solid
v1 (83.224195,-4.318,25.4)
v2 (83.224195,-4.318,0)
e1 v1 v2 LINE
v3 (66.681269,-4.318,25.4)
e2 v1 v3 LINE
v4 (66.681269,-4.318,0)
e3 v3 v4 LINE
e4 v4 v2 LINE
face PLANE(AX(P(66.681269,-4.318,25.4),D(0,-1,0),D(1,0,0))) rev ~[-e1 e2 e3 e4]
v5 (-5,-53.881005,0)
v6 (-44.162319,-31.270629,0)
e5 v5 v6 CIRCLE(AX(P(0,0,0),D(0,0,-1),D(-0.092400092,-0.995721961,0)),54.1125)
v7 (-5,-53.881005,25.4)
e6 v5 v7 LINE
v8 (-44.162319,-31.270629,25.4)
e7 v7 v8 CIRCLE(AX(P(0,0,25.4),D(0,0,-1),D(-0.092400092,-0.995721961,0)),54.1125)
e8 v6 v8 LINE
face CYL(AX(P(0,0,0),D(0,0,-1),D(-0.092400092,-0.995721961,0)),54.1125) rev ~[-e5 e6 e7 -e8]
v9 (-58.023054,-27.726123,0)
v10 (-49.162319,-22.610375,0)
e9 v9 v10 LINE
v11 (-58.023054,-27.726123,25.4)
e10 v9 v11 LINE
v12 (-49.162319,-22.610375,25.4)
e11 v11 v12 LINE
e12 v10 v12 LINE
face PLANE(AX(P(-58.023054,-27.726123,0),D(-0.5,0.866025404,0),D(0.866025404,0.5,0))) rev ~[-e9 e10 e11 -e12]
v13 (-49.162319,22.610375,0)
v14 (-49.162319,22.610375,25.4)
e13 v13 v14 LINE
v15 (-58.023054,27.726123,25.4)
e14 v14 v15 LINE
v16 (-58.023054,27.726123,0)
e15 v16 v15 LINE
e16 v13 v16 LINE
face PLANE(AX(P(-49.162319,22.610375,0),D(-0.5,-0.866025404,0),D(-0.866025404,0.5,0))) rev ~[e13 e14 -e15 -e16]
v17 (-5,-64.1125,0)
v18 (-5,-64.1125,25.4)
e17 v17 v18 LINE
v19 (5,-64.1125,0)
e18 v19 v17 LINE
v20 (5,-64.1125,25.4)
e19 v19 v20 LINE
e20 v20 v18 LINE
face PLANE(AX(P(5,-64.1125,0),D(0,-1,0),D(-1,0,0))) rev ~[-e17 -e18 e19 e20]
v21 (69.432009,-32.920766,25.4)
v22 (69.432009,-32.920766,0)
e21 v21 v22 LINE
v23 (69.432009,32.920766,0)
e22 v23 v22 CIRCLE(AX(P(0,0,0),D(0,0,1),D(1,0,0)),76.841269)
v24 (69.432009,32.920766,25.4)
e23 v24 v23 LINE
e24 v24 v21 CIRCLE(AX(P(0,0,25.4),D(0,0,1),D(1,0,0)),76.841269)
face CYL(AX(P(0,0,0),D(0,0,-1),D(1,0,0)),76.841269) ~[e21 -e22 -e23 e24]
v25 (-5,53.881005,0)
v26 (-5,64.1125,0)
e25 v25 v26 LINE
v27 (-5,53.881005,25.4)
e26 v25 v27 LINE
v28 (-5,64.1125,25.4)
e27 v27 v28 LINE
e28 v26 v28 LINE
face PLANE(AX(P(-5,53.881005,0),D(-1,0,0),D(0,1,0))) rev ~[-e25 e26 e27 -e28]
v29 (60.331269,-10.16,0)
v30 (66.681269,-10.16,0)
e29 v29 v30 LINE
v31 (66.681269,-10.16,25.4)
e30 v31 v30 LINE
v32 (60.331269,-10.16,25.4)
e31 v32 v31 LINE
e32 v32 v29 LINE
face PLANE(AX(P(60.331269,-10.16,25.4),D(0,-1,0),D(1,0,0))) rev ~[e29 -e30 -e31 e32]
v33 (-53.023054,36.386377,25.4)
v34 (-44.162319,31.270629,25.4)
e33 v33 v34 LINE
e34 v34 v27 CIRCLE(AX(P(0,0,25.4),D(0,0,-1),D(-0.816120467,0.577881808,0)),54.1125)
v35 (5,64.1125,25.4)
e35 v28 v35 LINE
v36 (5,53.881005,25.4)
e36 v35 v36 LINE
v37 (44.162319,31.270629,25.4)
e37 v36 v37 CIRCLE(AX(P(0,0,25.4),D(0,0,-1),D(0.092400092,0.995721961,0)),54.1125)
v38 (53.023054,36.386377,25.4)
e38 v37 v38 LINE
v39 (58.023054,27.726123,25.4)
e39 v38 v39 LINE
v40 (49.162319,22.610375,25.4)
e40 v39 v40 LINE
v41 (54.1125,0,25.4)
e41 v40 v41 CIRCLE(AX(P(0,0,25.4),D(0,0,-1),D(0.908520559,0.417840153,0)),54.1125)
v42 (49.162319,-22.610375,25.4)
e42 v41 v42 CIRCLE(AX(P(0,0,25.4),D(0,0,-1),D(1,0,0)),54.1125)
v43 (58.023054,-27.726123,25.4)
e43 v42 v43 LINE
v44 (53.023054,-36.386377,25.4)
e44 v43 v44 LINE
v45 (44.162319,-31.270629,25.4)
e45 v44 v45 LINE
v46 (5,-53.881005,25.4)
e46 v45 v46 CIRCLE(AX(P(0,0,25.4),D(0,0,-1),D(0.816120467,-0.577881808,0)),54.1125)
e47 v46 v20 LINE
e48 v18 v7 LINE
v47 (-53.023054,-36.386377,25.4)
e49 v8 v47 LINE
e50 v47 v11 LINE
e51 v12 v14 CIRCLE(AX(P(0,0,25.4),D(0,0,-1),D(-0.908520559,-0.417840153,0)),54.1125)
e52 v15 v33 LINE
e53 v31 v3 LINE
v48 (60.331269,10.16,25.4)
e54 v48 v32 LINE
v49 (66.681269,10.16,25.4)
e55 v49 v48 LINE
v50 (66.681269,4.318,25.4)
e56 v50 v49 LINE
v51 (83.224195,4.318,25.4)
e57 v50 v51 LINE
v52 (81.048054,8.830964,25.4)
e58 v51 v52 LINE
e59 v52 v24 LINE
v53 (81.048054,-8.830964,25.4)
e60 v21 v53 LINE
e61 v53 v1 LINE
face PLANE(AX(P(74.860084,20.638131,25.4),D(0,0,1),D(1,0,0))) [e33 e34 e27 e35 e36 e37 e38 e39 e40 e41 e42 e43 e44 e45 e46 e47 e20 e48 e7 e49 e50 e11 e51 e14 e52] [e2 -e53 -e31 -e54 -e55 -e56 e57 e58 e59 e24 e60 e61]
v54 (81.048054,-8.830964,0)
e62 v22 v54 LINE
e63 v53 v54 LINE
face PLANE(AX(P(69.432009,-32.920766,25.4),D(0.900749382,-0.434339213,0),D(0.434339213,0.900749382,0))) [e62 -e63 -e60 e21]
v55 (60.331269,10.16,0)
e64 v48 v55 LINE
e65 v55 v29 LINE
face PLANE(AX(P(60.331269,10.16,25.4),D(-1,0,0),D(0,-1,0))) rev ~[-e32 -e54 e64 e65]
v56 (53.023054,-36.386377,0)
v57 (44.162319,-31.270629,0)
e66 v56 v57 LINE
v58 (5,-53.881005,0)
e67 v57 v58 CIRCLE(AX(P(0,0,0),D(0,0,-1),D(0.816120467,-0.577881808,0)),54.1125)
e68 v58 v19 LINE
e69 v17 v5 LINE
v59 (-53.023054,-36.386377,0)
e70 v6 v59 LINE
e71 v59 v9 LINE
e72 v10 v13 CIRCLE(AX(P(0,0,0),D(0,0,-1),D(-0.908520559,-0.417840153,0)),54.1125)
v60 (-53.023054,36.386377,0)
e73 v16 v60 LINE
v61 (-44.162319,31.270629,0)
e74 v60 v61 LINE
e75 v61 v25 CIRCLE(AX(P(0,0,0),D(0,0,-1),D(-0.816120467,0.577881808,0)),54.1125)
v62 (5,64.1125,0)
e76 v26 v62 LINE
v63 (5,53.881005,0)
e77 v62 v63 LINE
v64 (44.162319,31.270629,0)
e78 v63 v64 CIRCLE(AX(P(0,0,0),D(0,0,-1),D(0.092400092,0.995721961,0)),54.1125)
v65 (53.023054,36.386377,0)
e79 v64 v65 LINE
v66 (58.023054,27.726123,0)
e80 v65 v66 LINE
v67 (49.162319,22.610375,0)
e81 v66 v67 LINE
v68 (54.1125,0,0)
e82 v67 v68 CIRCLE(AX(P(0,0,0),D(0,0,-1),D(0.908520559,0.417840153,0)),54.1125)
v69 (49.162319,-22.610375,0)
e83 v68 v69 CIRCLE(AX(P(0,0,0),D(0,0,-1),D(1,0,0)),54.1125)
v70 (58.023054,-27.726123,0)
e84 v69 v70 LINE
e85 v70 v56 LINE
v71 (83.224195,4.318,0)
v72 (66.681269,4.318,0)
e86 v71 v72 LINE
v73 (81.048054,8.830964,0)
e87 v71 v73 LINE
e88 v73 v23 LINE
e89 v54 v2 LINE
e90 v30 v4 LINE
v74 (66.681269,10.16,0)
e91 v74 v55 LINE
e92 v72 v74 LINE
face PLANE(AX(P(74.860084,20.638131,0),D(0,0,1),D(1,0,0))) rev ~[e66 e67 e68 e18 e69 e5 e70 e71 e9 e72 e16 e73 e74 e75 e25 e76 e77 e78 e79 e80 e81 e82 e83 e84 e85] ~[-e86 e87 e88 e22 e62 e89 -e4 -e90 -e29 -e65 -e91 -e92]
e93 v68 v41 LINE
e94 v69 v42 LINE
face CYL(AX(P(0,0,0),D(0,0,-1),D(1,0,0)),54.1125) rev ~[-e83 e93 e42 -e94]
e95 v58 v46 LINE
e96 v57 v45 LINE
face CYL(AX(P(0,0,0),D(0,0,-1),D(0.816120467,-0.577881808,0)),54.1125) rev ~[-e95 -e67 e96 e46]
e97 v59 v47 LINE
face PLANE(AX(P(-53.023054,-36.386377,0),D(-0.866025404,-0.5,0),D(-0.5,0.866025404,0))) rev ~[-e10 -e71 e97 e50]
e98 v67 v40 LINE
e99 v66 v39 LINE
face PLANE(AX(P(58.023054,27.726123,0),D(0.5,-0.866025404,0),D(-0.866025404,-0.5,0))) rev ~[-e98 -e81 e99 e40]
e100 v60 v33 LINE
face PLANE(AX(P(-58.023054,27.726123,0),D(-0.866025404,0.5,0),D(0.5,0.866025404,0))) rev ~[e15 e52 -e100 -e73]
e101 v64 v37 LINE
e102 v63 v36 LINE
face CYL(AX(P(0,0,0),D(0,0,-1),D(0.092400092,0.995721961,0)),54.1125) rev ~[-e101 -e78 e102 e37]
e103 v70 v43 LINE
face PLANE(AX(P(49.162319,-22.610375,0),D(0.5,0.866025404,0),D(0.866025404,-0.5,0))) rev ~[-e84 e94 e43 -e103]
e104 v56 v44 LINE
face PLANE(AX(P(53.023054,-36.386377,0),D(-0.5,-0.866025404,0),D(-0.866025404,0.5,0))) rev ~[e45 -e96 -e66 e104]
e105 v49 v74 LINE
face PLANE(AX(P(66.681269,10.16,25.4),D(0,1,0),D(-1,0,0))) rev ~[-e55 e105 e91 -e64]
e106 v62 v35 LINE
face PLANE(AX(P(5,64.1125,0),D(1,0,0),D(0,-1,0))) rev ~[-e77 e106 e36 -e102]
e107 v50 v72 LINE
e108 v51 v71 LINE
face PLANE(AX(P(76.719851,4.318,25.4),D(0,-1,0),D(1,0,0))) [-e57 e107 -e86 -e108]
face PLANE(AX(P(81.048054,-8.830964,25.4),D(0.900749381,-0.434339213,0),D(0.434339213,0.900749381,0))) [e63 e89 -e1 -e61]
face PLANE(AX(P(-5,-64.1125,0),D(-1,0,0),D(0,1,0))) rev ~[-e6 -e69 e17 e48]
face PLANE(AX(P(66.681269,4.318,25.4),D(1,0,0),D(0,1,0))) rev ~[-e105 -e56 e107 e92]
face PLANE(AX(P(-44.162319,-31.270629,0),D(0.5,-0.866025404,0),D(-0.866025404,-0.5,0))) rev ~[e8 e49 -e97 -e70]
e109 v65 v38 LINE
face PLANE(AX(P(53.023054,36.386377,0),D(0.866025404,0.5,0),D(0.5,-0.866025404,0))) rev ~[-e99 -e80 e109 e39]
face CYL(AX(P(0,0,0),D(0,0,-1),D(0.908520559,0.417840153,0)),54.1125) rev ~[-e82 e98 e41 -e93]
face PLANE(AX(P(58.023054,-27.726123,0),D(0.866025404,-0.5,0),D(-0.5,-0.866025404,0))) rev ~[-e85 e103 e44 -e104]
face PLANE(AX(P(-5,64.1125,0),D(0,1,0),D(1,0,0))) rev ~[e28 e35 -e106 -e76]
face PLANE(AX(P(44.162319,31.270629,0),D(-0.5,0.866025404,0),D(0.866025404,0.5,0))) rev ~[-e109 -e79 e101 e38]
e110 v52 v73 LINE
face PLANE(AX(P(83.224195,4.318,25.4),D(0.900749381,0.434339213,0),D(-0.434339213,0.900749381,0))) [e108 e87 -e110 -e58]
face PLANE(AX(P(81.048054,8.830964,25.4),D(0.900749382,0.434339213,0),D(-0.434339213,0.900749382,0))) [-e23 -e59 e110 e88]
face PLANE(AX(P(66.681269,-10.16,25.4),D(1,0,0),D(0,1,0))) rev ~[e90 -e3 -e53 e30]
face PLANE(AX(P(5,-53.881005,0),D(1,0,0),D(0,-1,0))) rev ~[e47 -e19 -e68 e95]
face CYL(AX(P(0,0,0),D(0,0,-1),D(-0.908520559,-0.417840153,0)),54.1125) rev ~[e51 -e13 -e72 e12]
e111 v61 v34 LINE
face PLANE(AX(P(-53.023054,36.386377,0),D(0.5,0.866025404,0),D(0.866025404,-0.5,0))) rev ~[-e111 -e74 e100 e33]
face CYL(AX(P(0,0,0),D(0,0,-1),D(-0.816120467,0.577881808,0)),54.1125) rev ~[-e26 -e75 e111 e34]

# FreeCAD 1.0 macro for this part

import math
import FreeCAD as App
import Part
import Sketcher

V = App.Vector
Q = App.Units.Quantity

doc = App.newDocument("Part")
body = doc.addObject("PartDesign::Body", "Body")

# Sketch on XY plane
sketch1 = body.newObject("Sketcher::SketchObject", "Sketch")
sketch1.AttachmentSupport = (doc.getObject("XY_Plane"), [""])
sketch1.MapMode = "FlatFace"
sketch1.addGeometry([
    Part.Circle(V(0, 0, 0), V(0, 0, 1), 76.841269),  # 0
    Part.LineSegment(V(58.023054, 27.726123, 0), V(49.162319, 22.610375, 0)),  # 1
    Part.ArcOfCircle(Part.Circle(V(0, 0, 0), V(0, 0, 1), 54.1125), math.radians(0), math.radians(24.698302)),  # 2
    Part.ArcOfCircle(Part.Circle(V(0, 0, 0), V(0, 0, 1), 54.1125), math.radians(-24.698302), math.radians(0)),  # 3
    Part.LineSegment(V(49.162319, -22.610375, 0), V(58.023054, -27.726123, 0)),  # 4
    Part.LineSegment(V(58.023054, -27.726123, 0), V(53.023054, -36.386377, 0)),  # 5
    Part.LineSegment(V(53.023054, -36.386377, 0), V(44.162319, -31.270629, 0)),  # 6
    Part.ArcOfCircle(Part.Circle(V(0, 0, 0), V(0, 0, 1), 54.1125), math.radians(-84.698302), math.radians(-35.301698)),  # 7
    Part.LineSegment(V(5, -53.881005, 0), V(5, -64.1125, 0)),  # 8
    Part.LineSegment(V(5, -64.1125, 0), V(-5, -64.1125, 0)),  # 9
    Part.LineSegment(V(-5, -64.1125, 0), V(-5, -53.881005, 0)),  # 10
    Part.ArcOfCircle(Part.Circle(V(0, 0, 0), V(0, 0, 1), 54.1125), math.radians(-144.698302), math.radians(-95.301698)),  # 11
    Part.LineSegment(V(-44.162319, -31.270629, 0), V(-53.023054, -36.386377, 0)),  # 12
    Part.LineSegment(V(-53.023054, -36.386377, 0), V(-58.023054, -27.726123, 0)),  # 13
    Part.LineSegment(V(-58.023054, -27.726123, 0), V(-49.162319, -22.610375, 0)),  # 14
    Part.ArcOfCircle(Part.Circle(V(0, 0, 0), V(0, 0, 1), 54.1125), math.radians(155.301698), math.radians(204.698302)),  # 15
    Part.LineSegment(V(-49.162319, 22.610375, 0), V(-58.023054, 27.726123, 0)),  # 16
    Part.LineSegment(V(-58.023054, 27.726123, 0), V(-53.023054, 36.386377, 0)),  # 17
    Part.LineSegment(V(-53.023054, 36.386377, 0), V(-44.162319, 31.270629, 0)),  # 18
    Part.ArcOfCircle(Part.Circle(V(0, 0, 0), V(0, 0, 1), 54.1125), math.radians(95.301698), math.radians(144.698302)),  # 19
    Part.LineSegment(V(-5, 53.881005, 0), V(-5, 64.1125, 0)),  # 20
    Part.LineSegment(V(-5, 64.1125, 0), V(5, 64.1125, 0)),  # 21
    Part.LineSegment(V(5, 64.1125, 0), V(5, 53.881005, 0)),  # 22
    Part.ArcOfCircle(Part.Circle(V(0, 0, 0), V(0, 0, 1), 54.1125), math.radians(35.301698), math.radians(84.698302)),  # 23
    Part.LineSegment(V(44.162319, 31.270629, 0), V(53.023054, 36.386377, 0)),  # 24
    Part.LineSegment(V(53.023054, 36.386377, 0), V(58.023054, 27.726123, 0)),  # 25
], False)
sketch1.addConstraint([
    Sketcher.Constraint("Coincident", 1, 2, 2, 2),
    Sketcher.Constraint("Tangent", 2, 1, 3, 2),
    Sketcher.Constraint("Coincident", 3, 1, 4, 1),
    Sketcher.Constraint("Coincident", 4, 2, 5, 1),
    Sketcher.Constraint("Coincident", 5, 2, 6, 1),
    Sketcher.Constraint("Coincident", 6, 2, 7, 2),
    Sketcher.Constraint("Coincident", 7, 1, 8, 1),
    Sketcher.Constraint("Coincident", 8, 2, 9, 1),
    Sketcher.Constraint("Coincident", 9, 2, 10, 1),
    Sketcher.Constraint("Coincident", 10, 2, 11, 2),
    Sketcher.Constraint("Coincident", 11, 1, 12, 1),
    Sketcher.Constraint("Coincident", 12, 2, 13, 1),
    Sketcher.Constraint("Coincident", 13, 2, 14, 1),
    Sketcher.Constraint("Coincident", 14, 2, 15, 2),
    Sketcher.Constraint("Coincident", 15, 1, 16, 1),
    Sketcher.Constraint("Coincident", 16, 2, 17, 1),
    Sketcher.Constraint("Coincident", 17, 2, 18, 1),
    Sketcher.Constraint("Coincident", 18, 2, 19, 2),
    Sketcher.Constraint("Coincident", 19, 1, 20, 1),
    Sketcher.Constraint("Coincident", 20, 2, 21, 1),
    Sketcher.Constraint("Coincident", 21, 2, 22, 1),
    Sketcher.Constraint("Coincident", 22, 2, 23, 2),
    Sketcher.Constraint("Coincident", 23, 1, 24, 1),
    Sketcher.Constraint("Coincident", 24, 2, 25, 1),
    Sketcher.Constraint("Coincident", 25, 2, 1, 1),
    Sketcher.Constraint("Vertical", 8),
    Sketcher.Constraint("Horizontal", 9),
    Sketcher.Constraint("Vertical", 10),
    Sketcher.Constraint("Vertical", 20),
    Sketcher.Constraint("Horizontal", 21),
    Sketcher.Constraint("Vertical", 22),
    Sketcher.Constraint("Coincident", 0, 3, -1, 1),
    Sketcher.Constraint("Coincident", 2, 3, -1, 1),
    Sketcher.Constraint("Coincident", 7, 3, -1, 1),
    Sketcher.Constraint("Coincident", 11, 3, -1, 1),
    Sketcher.Constraint("Coincident", 15, 3, -1, 1),
    Sketcher.Constraint("Coincident", 19, 3, -1, 1),
    Sketcher.Constraint("Coincident", 23, 3, -1, 1),
    Sketcher.Constraint("Equal", 2, 3),
    Sketcher.Constraint("Equal", 3, 7),
    Sketcher.Constraint("Equal", 7, 11),
    Sketcher.Constraint("Equal", 11, 15),
    Sketcher.Constraint("Equal", 15, 19),
    Sketcher.Constraint("Equal", 19, 23),
    Sketcher.Constraint("Symmetric", 4, 2, 16, 2, -1, 1),
    Sketcher.Constraint("Symmetric", 5, 2, 17, 2, -1, 1),
    Sketcher.Constraint("Symmetric", 8, 2, 20, 2, -1, 1),
    Sketcher.Constraint("Symmetric", 12, 2, 24, 2, -1, 1),
    Sketcher.Constraint("Symmetric", 13, 2, 25, 2, -1, 1),
    Sketcher.Constraint("Symmetric", 5, 2, 12, 2, -2),
    Sketcher.Constraint("Symmetric", 4, 2, 13, 2, -2),
    Sketcher.Constraint("PointOnObject", 2, 1, -1),
    Sketcher.Constraint("Perpendicular", 4, 5),
    Sketcher.Constraint("Perpendicular", 5, 6),
    Sketcher.Constraint("Parallel", 1, 12),
    Sketcher.Constraint("Perpendicular", 12, 13),
    Sketcher.Constraint("Perpendicular", 13, 14),
    Sketcher.Constraint("Parallel", 6, 16),
    Sketcher.Constraint("Perpendicular", 17, 18),
    Sketcher.Constraint("Parallel", 14, 24),
    Sketcher.Constraint("Horizontal", 7, 1, 10, 2),
    Sketcher.Constraint("Horizontal", 19, 1, 22, 2),
    Sketcher.Constraint("Equal", 4, 6),
    Sketcher.Constraint("Angle", 1, Q("-150 deg")),
    Sketcher.Constraint("Radius", 2, Q("54.1125 mm")),
    Sketcher.Constraint("Diameter", 0, Q("153.682539 mm")),
    Sketcher.Constraint("DistanceX", 9, 2, 9, 1, Q("10 mm")),
    Sketcher.Constraint("Distance", 5, Q("10 mm")),
    Sketcher.Constraint("DistanceY", 8, 2, -1, 1, Q("64.1125 mm")),
    Sketcher.Constraint("DistanceY", 4, 2, 1, 2, Q("50.336498 mm")),
])
pad1 = body.newObject("PartDesign::Pad", "Pad")
pad1.Profile = sketch1
pad1.Length = Q("1 in")

# Sketch on XY plane
sketch2 = body.newObject("Sketcher::SketchObject", "Sketch001")
sketch2.AttachmentSupport = (doc.getObject("XY_Plane"), [""])
sketch2.MapMode = "FlatFace"
sketch2.AttachmentOffset = App.Placement(V(0, 0, 1 * 25.4), App.Rotation())
sketch2.addGeometry([
    Part.ArcOfCircle(Part.Circle(V(0, 0, 0), V(0, 0, 1), 76.841269), math.radians(0), math.radians(3.221362)),  # 0
    Part.LineSegment(V(76.719851, 4.318, 0), V(66.681269, 4.318, 0)),  # 1
    Part.LineSegment(V(66.681269, 4.318, 0), V(66.681269, 10.16, 0)),  # 2
    Part.LineSegment(V(66.681269, 10.16, 0), V(60.331269, 10.16, 0)),  # 3
    Part.LineSegment(V(60.331269, 10.16, 0), V(60.331269, -10.16, 0)),  # 4
    Part.LineSegment(V(60.331269, -10.16, 0), V(66.681269, -10.16, 0)),  # 5
    Part.LineSegment(V(66.681269, -10.16, 0), V(66.681269, -4.318, 0)),  # 6
    Part.LineSegment(V(66.681269, -4.318, 0), V(76.719851, -4.318, 0)),  # 7
    Part.ArcOfCircle(Part.Circle(V(0, 0, 0), V(0, 0, 1), 76.841269), math.radians(-3.221362), math.radians(0)),  # 8
], False)
sketch2.addConstraint([
    Sketcher.Constraint("Coincident", 0, 2, 1, 1),
    Sketcher.Constraint("Coincident", 1, 2, 2, 1),
    Sketcher.Constraint("Coincident", 2, 2, 3, 1),
    Sketcher.Constraint("Coincident", 3, 2, 4, 1),
    Sketcher.Constraint("Coincident", 4, 2, 5, 1),
    Sketcher.Constraint("Coincident", 5, 2, 6, 1),
    Sketcher.Constraint("Coincident", 6, 2, 7, 1),
    Sketcher.Constraint("Coincident", 7, 2, 8, 1),
    Sketcher.Constraint("Tangent", 8, 2, 0, 1),
    Sketcher.Constraint("Horizontal", 1),
    Sketcher.Constraint("Vertical", 2),
    Sketcher.Constraint("Horizontal", 3),
    Sketcher.Constraint("Vertical", 4),
    Sketcher.Constraint("Horizontal", 5),
    Sketcher.Constraint("Vertical", 6),
    Sketcher.Constraint("Horizontal", 7),
    Sketcher.Constraint("Coincident", 0, 3, -1, 1),
    Sketcher.Constraint("Equal", 0, 8),
    Sketcher.Constraint("Symmetric", 2, 2, 5, 2, -1),
    Sketcher.Constraint("PointOnObject", 8, 2, -1),
    Sketcher.Constraint("Vertical", 0, 2, 7, 2),
    Sketcher.Constraint("DistanceY", 4, 2, 4, 1, Q("0.8 in")),
    Sketcher.Constraint("DistanceX", 3, 2, 3, 1, Q("0.25 in")),
    Sketcher.Constraint("DistanceY", 2, 1, 2, 2, Q("0.23 in")),
    Sketcher.Constraint("DistanceX", 1, 2, 8, 2, Q("0.4 in")),
    Sketcher.Constraint("Radius", 0, Q("76.841269 mm")),
])
pocket1 = body.newObject("PartDesign::Pocket", "Pocket")
pocket1.Profile = sketch2
pocket1.Length = Q("100 in")

# Sketch on XY plane
sketch3 = body.newObject("Sketcher::SketchObject", "Sketch002")
sketch3.AttachmentSupport = (doc.getObject("XY_Plane"), [""])
sketch3.MapMode = "FlatFace"
sketch3.AttachmentOffset = App.Placement(V(0, 0, 1 * 25.4), App.Rotation())
sketch3.addGeometry([
    Part.LineSegment(V(81.048054, 8.830964, 0), V(69.432009, 32.920766, 0)),  # 0
    Part.ArcOfCircle(Part.Circle(V(0, 0, 0), V(0, 0, 1), 76.841269), math.radians(14.085914), math.radians(25.367685)),  # 1
    Part.ArcOfCircle(Part.Circle(V(0, 0, 0), V(0, 0, 1), 76.841269), math.radians(7.620448), math.radians(14.085914)),  # 2
    Part.ArcOfCircle(Part.Circle(V(0, 0, 0), V(0, 0, 1), 76.841269), math.radians(3.221362), math.radians(7.620448)),  # 3
    Part.LineSegment(V(76.719851, 4.318, 0), V(83.224195, 4.318, 0)),  # 4
    Part.LineSegment(V(83.224195, 4.318, 0), V(81.048054, 8.830964, 0)),  # 5
    Part.ArcOfCircle(Part.Circle(V(0, 0, 0), V(0, 0, 1), 76.841269), math.radians(-7.620448), math.radians(-3.221362)),  # 6
    Part.ArcOfCircle(Part.Circle(V(0, 0, 0), V(0, 0, 1), 76.841269), math.radians(-14.085914), math.radians(-7.620448)),  # 7
    Part.ArcOfCircle(Part.Circle(V(0, 0, 0), V(0, 0, 1), 76.841269), math.radians(-25.367685), math.radians(-14.085914)),  # 8
    Part.LineSegment(V(69.432009, -32.920766, 0), V(81.048054, -8.830964, 0)),  # 9
    Part.LineSegment(V(81.048054, -8.830964, 0), V(83.224195, -4.318, 0)),  # 10
    Part.LineSegment(V(83.224195, -4.318, 0), V(76.719851, -4.318, 0)),  # 11
], False)
sketch3.addConstraint([
    Sketcher.Constraint("Coincident", 0, 2, 1, 2),
    Sketcher.Constraint("Tangent", 1, 1, 2, 2),
    Sketcher.Constraint("Tangent", 2, 1, 3, 2),
    Sketcher.Constraint("Coincident", 3, 1, 4, 1),
    Sketcher.Constraint("Coincident", 4, 2, 5, 1),
    Sketcher.Constraint("Coincident", 5, 2, 0, 1),
    Sketcher.Constraint("Tangent", 6, 1, 7, 2),
    Sketcher.Constraint("Tangent", 7, 1, 8, 2),
    Sketcher.Constraint("Coincident", 8, 1, 9, 1),
    Sketcher.Constraint("Coincident", 9, 2, 10, 1),
    Sketcher.Constraint("Coincident", 10, 2, 11, 1),
    Sketcher.Constraint("Coincident", 11, 2, 6, 2),
    Sketcher.Constraint("Horizontal", 4),
    Sketcher.Constraint("Horizontal", 11),
    Sketcher.Constraint("Coincident", 1, 3, -1, 1),
    Sketcher.Constraint("Coincident", 3, 3, -1, 1),
    Sketcher.Constraint("Coincident", 6, 3, -1, 1),
    Sketcher.Constraint("Coincident", 8, 3, -1, 1),
    Sketcher.Constraint("Equal", 3, 6),
    Sketcher.Constraint("Symmetric", 5, 2, 9, 2, -1),
    Sketcher.Constraint("Symmetric", 4, 2, 10, 2, -1),
    Sketcher.Constraint("Parallel", 0, 5),
    Sketcher.Constraint("Vertical", 2, 1, 6, 1),
    Sketcher.Constraint("Vertical", 1, 1, 7, 1),
    Sketcher.Constraint("Vertical", 0, 2, 8, 1),
    Sketcher.Constraint("DistanceY", -1, 1, 3, 1, Q("0.17 in")),
    Sketcher.Constraint("Radius", 1, Q("76.841269 mm")),
    Sketcher.Constraint("DistanceY", 1, 1, 0, 2, Q("14.219402 mm")),
    Sketcher.Constraint("DistanceY", 5, 2, 1, 1, Q("9.8704 mm")),
    Sketcher.Constraint("DistanceX", 4, 1, 4, 2, Q("6.504344 mm")),
    Sketcher.Constraint("DistanceX", -1, 1, 0, 2, Q("69.432009 mm")),
    Sketcher.Constraint("DistanceX", -1, 1, 2, 1, Q("76.162628 mm")),
])
pad2 = body.newObject("PartDesign::Pad", "Pad001")
pad2.Profile = sketch3
pad2.Length = Q("1 in")
pad2.Reversed = True

doc.recompute()
